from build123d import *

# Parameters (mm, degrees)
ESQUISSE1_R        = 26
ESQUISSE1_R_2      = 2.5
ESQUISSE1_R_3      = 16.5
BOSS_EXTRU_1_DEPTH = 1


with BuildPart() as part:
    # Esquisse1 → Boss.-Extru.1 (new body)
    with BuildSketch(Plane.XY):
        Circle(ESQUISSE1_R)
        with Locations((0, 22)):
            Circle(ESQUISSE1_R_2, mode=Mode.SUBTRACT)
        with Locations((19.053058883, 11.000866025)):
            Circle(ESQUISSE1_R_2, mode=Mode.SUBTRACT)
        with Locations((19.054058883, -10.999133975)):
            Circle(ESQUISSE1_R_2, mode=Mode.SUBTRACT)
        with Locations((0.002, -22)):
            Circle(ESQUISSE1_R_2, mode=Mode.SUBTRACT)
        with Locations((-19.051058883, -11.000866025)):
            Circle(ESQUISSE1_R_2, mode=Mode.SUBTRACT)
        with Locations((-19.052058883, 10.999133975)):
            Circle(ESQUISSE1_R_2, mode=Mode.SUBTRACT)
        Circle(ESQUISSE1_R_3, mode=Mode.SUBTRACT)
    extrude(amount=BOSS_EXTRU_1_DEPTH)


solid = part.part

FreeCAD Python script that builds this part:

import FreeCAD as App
import Part
import Sketcher
Q = App.Units.Quantity

doc = App.newDocument("Part")
body = doc.addObject("PartDesign::Body", "Body")

sketch1 = doc.addObject("Sketcher::SketchObject", "Sketch")
body.addObject(sketch1)
sketch1.AttachmentSupport = (doc.XY_Plane, [""])
sketch1.MapMode = "FlatFace"
sketch1.addGeometry([
    Part.Circle(App.Vector(0, 0, 0), App.Vector(0, 0, 1), 26),
    Part.Circle(App.Vector(-19.1, -11, 0), App.Vector(0, 0, 1), 2.5),
    Part.Circle(App.Vector(0, 0, 0), App.Vector(0, 0, 1), 16.5),
    Part.Circle(App.Vector(0, -22, 0), App.Vector(0, 0, 1), 2.5),
    Part.Circle(App.Vector(19.1, -11, 0), App.Vector(0, 0, 1), 2.5),
    Part.Circle(App.Vector(-19.1, 11, 0), App.Vector(0, 0, 1), 2.5),
    Part.Circle(App.Vector(0, 22, 0), App.Vector(0, 0, 1), 2.5),
    Part.Circle(App.Vector(19.1, 11, 0), App.Vector(0, 0, 1), 2.5),
], False)
sketch1.addConstraint([
    Sketcher.Constraint("Coincident", 0, 3, -1, 1),
    Sketcher.Constraint("Coincident", 2, 3, -1, 1),
    Sketcher.Constraint("Equal", 1, 3),
    Sketcher.Constraint("Equal", 3, 4),
    Sketcher.Constraint("Equal", 4, 5),
    Sketcher.Constraint("Equal", 5, 6),
    Sketcher.Constraint("Equal", 6, 7),
    Sketcher.Constraint("PointOnObject", 6, 3, -2),
    Sketcher.Constraint("Diameter", 0, Q("52 mm")),
    Sketcher.Constraint("Diameter", 1, Q("5 mm")),
    Sketcher.Constraint("Diameter", 2, Q("33 mm")),
    Sketcher.Constraint("DistanceY", 3, 3, -1, 1, Q("22 mm")),
    Sketcher.Constraint("DistanceY", -1, 1, 6, 3, Q("22 mm")),
    Sketcher.Constraint("DistanceY", 1, 3, 5, 3, Q("22 mm")),
    Sketcher.Constraint("DistanceY", 4, 3, 7, 3, Q("22 mm")),
    Sketcher.Constraint("DistanceX", -1, 1, 3, 3, Q("0.002 mm")),
    Sketcher.Constraint("DistanceX", 5, 3, 1, 3, Q("0.001 mm")),
    Sketcher.Constraint("DistanceX", 7, 3, 4, 3, Q("0.001 mm")),
    Sketcher.Constraint("DistanceX", 1, 3, -1, 1, Q("19.051059 mm")),
    Sketcher.Constraint("DistanceX", -1, 1, 4, 3, Q("19.054059 mm")),
    Sketcher.Constraint("DistanceY", 1, 3, -1, 1, Q("11.000866 mm")),
    Sketcher.Constraint("DistanceY", 4, 3, -1, 1, Q("10.999134 mm")),
])
pad1 = doc.addObject("PartDesign::Pad", "Pad")
body.addObject(pad1)
pad1.Profile = sketch1
pad1.Length = 1

doc.recompute()
